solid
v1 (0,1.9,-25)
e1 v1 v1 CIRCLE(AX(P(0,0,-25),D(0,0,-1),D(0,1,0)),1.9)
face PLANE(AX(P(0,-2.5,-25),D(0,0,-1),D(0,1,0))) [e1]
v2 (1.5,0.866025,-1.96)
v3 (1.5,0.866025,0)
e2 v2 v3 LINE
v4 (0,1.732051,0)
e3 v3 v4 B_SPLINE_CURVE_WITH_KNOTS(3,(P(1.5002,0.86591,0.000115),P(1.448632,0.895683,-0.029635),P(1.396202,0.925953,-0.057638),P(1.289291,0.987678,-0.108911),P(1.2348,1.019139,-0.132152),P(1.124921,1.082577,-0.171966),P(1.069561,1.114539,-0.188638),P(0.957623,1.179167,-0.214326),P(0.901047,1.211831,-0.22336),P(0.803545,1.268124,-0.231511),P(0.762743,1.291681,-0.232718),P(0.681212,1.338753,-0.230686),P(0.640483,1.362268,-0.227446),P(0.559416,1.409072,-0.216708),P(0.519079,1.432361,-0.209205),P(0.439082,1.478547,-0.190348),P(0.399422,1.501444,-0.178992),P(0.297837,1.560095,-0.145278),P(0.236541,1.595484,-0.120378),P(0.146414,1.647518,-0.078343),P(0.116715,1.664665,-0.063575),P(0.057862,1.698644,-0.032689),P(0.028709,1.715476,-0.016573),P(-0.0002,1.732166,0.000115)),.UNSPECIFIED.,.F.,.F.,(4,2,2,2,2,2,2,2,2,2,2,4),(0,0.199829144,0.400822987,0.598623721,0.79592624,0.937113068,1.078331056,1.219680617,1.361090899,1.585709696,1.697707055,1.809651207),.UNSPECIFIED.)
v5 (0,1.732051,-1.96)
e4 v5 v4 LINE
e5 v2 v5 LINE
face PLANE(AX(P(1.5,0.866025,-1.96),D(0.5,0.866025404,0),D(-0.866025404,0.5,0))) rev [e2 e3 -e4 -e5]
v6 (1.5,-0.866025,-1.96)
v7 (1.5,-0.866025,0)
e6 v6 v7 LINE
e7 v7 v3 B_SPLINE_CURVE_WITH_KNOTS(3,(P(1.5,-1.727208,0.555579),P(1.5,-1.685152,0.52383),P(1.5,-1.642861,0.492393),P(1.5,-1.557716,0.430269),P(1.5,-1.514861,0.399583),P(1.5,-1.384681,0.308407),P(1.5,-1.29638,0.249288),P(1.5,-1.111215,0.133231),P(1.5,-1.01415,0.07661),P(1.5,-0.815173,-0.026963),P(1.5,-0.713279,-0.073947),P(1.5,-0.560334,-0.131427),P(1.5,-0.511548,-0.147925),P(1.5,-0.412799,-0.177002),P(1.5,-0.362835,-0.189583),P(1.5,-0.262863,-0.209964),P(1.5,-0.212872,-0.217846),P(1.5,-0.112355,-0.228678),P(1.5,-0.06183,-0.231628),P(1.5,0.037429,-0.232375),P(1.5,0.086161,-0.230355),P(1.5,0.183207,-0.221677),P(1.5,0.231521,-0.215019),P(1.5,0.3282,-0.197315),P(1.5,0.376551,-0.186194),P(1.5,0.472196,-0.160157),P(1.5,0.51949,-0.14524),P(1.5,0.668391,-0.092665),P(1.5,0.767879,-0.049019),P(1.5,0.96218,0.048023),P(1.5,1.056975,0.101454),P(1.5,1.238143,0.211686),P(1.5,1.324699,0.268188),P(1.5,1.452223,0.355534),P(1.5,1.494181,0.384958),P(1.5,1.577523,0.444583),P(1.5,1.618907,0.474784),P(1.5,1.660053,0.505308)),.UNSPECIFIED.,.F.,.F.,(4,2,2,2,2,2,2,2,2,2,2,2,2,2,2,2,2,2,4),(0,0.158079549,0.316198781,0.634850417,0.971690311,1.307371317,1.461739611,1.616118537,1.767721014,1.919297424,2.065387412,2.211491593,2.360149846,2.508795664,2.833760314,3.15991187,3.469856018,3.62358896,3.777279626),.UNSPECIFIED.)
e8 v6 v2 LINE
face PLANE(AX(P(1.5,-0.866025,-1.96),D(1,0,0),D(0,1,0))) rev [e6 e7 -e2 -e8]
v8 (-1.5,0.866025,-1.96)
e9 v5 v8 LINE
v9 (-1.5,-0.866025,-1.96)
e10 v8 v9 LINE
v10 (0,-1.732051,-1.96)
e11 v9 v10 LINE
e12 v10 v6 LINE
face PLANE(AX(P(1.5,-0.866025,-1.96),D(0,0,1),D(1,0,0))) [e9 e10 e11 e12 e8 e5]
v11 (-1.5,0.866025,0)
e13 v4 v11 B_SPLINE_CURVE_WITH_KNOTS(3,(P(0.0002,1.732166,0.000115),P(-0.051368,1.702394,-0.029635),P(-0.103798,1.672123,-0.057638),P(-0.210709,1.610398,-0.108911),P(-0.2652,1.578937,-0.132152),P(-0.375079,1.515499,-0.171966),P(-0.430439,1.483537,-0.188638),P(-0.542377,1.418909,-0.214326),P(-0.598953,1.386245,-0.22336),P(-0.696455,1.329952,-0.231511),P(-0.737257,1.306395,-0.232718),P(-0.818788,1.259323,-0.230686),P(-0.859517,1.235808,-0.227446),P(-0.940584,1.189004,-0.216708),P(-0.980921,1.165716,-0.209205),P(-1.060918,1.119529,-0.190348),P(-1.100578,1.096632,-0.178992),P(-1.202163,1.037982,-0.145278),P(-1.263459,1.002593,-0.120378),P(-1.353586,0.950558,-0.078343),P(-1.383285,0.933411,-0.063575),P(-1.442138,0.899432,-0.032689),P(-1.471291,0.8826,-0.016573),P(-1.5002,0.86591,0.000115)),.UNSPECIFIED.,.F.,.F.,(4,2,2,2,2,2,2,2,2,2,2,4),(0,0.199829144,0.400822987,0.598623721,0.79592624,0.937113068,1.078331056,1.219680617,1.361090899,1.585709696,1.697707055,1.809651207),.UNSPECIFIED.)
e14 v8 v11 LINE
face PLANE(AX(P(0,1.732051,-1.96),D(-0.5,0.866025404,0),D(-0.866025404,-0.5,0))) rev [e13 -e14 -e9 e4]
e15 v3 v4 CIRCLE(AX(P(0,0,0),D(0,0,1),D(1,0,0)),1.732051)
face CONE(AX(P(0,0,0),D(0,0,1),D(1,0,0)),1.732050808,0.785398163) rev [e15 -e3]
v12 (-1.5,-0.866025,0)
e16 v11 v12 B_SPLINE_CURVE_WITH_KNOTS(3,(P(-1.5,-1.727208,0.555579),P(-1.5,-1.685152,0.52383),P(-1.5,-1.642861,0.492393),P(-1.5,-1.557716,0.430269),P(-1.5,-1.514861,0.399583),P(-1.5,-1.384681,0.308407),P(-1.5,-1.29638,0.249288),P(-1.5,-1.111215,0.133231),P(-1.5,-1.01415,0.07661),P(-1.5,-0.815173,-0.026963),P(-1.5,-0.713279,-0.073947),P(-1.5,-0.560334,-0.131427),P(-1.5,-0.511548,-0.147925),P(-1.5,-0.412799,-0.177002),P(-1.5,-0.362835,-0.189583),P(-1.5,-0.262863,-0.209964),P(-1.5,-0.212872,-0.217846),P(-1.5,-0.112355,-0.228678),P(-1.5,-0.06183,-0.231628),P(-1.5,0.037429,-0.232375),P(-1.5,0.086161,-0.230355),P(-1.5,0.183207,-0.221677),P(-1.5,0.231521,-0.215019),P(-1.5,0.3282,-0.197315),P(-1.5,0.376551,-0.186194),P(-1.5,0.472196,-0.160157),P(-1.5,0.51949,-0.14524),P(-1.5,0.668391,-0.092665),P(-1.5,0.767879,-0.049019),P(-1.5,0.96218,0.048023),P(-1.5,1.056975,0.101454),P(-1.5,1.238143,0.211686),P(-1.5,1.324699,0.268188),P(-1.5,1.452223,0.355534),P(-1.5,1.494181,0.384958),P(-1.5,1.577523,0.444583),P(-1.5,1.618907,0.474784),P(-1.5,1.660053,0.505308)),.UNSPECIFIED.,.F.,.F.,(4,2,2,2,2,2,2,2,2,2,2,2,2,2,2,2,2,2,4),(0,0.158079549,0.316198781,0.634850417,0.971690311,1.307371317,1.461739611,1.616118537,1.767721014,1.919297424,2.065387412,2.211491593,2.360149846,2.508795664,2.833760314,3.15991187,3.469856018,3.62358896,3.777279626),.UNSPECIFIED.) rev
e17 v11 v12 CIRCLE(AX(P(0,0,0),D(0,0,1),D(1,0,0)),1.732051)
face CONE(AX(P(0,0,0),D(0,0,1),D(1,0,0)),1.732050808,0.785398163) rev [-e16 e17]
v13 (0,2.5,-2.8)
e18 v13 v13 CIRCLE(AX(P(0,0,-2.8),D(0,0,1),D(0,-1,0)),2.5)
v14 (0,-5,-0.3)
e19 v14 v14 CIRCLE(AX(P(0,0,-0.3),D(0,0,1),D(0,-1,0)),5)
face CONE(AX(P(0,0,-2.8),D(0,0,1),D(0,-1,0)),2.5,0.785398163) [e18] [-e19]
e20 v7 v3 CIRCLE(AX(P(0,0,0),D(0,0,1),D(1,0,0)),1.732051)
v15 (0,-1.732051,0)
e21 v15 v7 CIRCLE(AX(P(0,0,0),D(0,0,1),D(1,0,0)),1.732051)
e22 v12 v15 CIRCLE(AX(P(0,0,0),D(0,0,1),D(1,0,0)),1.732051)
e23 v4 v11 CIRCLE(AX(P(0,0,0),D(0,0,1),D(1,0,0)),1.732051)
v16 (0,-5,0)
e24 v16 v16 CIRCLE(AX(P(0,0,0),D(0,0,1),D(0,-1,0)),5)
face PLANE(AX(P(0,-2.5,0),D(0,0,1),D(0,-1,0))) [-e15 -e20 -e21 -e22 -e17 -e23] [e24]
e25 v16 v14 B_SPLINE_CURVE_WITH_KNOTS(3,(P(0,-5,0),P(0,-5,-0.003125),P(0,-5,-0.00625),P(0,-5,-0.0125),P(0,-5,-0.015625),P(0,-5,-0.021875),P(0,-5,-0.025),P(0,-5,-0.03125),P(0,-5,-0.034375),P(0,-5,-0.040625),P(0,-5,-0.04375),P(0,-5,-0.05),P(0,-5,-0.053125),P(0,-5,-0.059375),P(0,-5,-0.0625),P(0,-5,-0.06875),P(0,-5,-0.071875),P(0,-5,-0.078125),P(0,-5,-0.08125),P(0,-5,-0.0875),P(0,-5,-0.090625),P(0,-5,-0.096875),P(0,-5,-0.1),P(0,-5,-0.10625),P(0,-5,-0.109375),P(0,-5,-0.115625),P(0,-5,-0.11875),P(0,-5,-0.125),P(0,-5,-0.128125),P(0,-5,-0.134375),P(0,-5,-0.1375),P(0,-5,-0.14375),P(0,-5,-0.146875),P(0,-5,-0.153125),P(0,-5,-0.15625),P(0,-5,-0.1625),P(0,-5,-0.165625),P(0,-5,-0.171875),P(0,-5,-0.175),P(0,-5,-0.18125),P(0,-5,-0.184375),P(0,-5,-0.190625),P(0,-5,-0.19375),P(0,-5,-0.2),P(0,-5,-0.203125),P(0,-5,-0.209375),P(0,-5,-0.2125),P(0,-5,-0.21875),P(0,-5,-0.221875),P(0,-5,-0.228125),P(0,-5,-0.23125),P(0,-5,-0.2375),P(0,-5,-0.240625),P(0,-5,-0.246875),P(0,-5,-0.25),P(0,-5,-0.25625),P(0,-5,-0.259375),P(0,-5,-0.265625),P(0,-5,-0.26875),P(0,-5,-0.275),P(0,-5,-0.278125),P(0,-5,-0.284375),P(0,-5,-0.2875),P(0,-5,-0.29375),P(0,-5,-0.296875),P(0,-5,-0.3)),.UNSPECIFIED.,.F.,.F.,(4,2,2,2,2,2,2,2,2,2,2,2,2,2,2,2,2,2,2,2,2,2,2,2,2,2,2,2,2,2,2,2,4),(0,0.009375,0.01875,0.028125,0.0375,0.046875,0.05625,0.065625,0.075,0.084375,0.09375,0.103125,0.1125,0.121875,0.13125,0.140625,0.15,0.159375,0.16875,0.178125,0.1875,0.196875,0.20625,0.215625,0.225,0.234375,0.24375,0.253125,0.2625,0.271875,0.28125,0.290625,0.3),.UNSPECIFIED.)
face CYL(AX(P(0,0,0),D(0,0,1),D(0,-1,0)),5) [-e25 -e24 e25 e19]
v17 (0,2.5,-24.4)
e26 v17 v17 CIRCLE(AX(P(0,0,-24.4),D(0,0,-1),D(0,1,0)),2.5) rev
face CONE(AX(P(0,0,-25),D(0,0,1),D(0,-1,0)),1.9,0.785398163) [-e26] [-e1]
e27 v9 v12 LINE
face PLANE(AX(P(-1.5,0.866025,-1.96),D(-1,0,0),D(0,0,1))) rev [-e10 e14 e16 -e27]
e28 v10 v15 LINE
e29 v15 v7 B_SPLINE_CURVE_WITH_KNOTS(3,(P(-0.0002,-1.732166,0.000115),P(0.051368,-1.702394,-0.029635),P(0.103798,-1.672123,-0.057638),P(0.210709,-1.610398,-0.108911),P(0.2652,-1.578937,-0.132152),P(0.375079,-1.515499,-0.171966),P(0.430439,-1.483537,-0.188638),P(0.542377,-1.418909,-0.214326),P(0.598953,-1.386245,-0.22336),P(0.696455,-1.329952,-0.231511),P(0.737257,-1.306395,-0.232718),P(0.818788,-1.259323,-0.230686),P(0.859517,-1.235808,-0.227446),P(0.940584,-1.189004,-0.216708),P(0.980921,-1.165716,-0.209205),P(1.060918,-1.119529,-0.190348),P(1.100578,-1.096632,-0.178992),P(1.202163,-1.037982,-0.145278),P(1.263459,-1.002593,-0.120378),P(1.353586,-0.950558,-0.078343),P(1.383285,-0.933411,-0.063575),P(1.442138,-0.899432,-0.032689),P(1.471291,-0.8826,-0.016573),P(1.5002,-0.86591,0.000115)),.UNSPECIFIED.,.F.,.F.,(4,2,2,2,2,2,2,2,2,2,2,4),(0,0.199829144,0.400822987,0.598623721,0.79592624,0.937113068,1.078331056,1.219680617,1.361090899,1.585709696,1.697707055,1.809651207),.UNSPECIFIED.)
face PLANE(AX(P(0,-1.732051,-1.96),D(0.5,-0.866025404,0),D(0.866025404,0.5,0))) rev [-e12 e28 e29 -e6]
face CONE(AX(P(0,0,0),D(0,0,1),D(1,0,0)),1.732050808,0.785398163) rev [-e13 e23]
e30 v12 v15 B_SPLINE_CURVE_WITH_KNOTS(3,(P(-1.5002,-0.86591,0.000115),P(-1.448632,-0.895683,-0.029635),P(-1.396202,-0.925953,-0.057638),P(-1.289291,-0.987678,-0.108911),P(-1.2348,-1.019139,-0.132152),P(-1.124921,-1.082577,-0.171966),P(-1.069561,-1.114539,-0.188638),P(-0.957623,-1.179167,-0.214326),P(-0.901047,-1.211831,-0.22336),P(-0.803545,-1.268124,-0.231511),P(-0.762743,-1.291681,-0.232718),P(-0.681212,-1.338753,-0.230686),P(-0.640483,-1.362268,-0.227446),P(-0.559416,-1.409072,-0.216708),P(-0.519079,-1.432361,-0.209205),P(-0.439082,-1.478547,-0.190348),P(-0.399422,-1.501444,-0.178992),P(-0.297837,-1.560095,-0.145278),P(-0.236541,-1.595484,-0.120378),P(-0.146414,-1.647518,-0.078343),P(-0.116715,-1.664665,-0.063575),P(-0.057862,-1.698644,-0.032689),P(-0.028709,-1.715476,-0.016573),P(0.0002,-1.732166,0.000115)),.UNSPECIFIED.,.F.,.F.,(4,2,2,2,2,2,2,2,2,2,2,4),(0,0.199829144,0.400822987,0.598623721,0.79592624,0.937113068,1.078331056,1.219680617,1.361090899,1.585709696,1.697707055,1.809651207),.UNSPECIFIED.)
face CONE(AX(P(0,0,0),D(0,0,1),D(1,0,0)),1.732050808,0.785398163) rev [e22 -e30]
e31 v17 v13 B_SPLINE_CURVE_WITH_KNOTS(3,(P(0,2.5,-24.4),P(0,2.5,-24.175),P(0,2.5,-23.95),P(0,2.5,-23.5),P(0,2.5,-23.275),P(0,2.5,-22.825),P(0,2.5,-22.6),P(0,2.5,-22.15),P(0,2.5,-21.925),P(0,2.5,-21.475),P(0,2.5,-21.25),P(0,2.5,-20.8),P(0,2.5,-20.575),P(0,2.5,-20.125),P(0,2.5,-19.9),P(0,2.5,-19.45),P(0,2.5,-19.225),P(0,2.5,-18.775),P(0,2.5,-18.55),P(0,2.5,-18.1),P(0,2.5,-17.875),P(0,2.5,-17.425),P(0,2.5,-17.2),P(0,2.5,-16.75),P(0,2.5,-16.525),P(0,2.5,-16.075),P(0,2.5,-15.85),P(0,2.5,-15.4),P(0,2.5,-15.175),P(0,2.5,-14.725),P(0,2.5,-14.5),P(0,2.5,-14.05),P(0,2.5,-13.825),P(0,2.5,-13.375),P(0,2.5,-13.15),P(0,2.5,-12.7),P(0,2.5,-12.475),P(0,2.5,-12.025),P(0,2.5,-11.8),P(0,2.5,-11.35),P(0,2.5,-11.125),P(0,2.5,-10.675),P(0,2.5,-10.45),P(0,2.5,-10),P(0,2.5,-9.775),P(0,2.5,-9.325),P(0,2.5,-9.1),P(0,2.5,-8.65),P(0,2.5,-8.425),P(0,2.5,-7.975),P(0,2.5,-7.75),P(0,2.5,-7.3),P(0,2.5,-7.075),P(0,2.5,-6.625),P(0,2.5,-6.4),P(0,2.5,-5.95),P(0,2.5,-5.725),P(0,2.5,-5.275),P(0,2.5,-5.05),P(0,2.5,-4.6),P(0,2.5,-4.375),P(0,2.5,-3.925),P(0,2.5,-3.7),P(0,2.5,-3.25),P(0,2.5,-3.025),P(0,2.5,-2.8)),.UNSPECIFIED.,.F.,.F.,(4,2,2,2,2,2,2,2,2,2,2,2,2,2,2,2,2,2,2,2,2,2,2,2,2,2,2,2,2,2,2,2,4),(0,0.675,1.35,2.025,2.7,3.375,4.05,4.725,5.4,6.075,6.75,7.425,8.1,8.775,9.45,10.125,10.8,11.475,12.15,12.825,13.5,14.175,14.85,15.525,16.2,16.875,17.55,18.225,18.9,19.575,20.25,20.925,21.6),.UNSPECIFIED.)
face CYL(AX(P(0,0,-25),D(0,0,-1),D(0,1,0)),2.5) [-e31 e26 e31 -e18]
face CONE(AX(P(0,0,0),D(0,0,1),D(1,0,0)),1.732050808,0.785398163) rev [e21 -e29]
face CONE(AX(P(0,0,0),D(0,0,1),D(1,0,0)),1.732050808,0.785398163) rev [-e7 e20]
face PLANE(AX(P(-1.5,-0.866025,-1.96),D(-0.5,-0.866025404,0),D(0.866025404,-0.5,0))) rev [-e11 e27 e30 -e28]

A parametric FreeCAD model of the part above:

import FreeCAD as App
import Part
import Sketcher
Q = App.Units.Quantity


def edges_at(feature, points):
    """Names of the edges that pass closest to the given points."""
    edges = feature.Shape.Edges
    near = lambda p: min(range(len(edges)), key=lambda i: edges[i].distToShape(Part.Vertex(*p))[0])
    return sorted({f"Edge{near(p) + 1}" for p in points})


def add_polygon(sketch, points):
    """Adds a closed chain of lines whose ends are joined by coincident constraints."""
    first, n = sketch.GeometryCount, len(points)
    for a, b in zip(points, points[1:] + points[:1]):
        sketch.addGeometry(Part.LineSegment(App.Vector(*a, 0), App.Vector(*b, 0)), False)
    for i in range(n):
        sketch.addConstraint(Sketcher.Constraint("Coincident", first + i, 2, first + (i + 1) % n, 1))

doc = App.newDocument("Part")
body = doc.addObject("PartDesign::Body", "Body")

# Sketch on YZ plane
sketch1 = body.newObject("Sketcher::SketchObject", "Sketch")
sketch1.AttachmentSupport = (doc.getObject("YZ_Plane"), [""])
sketch1.MapMode = "FlatFace"
add_polygon(sketch1, [(2.5, 0), (0, 0), (0, -25), (2.5, -25)])  # lines 0-3
sketch1.addConstraint([
    Sketcher.Constraint("Horizontal", 0),
    Sketcher.Constraint("Vertical", 1),
    Sketcher.Constraint("Horizontal", 2),
    Sketcher.Constraint("Vertical", 3),
    Sketcher.Constraint("Coincident", 0, 2, -1, 1),
    Sketcher.Constraint("DistanceY", 1, 2, 1, 1, 25.0),
    Sketcher.Constraint("DistanceX", 0, 2, 0, 1, 2.5),
])
revolution = body.newObject("PartDesign::Revolution", "Revolution")
revolution.Profile = sketch1
revolution.ReferenceAxis = (sketch1, ["V_Axis"])
revolution.Angle = 360
doc.recompute()

chamfer = body.newObject("PartDesign::Chamfer", "Chamfer")
chamfer.Base = (revolution, edges_at(revolution, [(0, -2.5, -25)]))
chamfer.Size = 0.6

# Sketch on YZ plane
sketch2 = body.newObject("Sketcher::SketchObject", "Sketch001")
sketch2.AttachmentSupport = (doc.getObject("YZ_Plane"), [""])
sketch2.MapMode = "FlatFace"
add_polygon(sketch2, [(5, -0.3), (5, 0), (0, 0), (0, -2.8), (2.5, -2.8)])  # lines 0-4
sketch2.addConstraint([
    Sketcher.Constraint("Vertical", 0),
    Sketcher.Constraint("Horizontal", 1),
    Sketcher.Constraint("Vertical", 2),
    Sketcher.Constraint("Horizontal", 3),
    Sketcher.Constraint("Coincident", 1, 2, -1, 1),
    Sketcher.Constraint("DistanceX", 1, 2, 1, 1, 5.0),
    Sketcher.Constraint("Angle", 4, Q("45 deg")),
    Sketcher.Constraint("DistanceX", 3, 1, 3, 2, 2.5),
    Sketcher.Constraint("DistanceY", 0, 1, 0, 2, 0.3),
])
revolution2 = body.newObject("PartDesign::Revolution", "Revolution001")
revolution2.Profile = sketch2
revolution2.ReferenceAxis = (sketch2, ["V_Axis"])
revolution2.Angle = 360

# Sketch on YZ plane
sketch3 = body.newObject("Sketcher::SketchObject", "Sketch002")
sketch3.AttachmentSupport = (doc.getObject("YZ_Plane"), [""])
sketch3.MapMode = "FlatFace"
add_polygon(sketch3, [(0, -2.8), (-2.5, -2.8), (0, -5.3)])  # lines 0-2
sketch3.addConstraint([
    Sketcher.Constraint("Horizontal", 0),
    Sketcher.Constraint("Vertical", 2),
    Sketcher.Constraint("PointOnObject", 1, 2, -2),
    Sketcher.Constraint("Equal", 0, 2),
    Sketcher.Constraint("DistanceX", 0, 2, 0, 1, 2.5),
    Sketcher.Constraint("DistanceY", 0, 2, -1, 1, 2.8),
])
revolution3 = body.newObject("PartDesign::Revolution", "Revolution002")
revolution3.Profile = sketch3
revolution3.ReferenceAxis = (sketch3, ["V_Axis"])
revolution3.Angle = 360

# Sketch on XY plane
sketch4 = body.newObject("Sketcher::SketchObject", "Sketch003")
sketch4.AttachmentSupport = (doc.getObject("XY_Plane"), [""])
sketch4.MapMode = "FlatFace"
add_polygon(sketch4, [(1.5, -0.9), (1.5, 0.9), (0, 1.7), (-1.5, 0.9), (-1.5, -0.9), (0, -1.7)])  # lines 0-5
sketch4.addConstraint([
    Sketcher.Constraint("Vertical", 0),
    Sketcher.Constraint("Vertical", 3),
    Sketcher.Constraint("Symmetric", 0, 2, 3, 2, -1, 1),
    Sketcher.Constraint("Symmetric", 1, 2, 4, 2, -1, 1),
    Sketcher.Constraint("PointOnObject", 1, 2, -2),
    Sketcher.Constraint("Parallel", 2, 5),
    Sketcher.Constraint("Horizontal", 0, 2, 2, 2),
    Sketcher.Constraint("Angle", 1, Q("150 deg")),
    Sketcher.Constraint("DistanceX", 2, 2, 0, 2, 3.0),
    Sketcher.Constraint("DistanceY", 0, 1, 0, 2, 1.732051),
])
pocket1 = body.newObject("PartDesign::Pocket", "Pocket")
pocket1.Profile = sketch4
pocket1.Length = 1.96

# Sketch on YZ plane
sketch5 = body.newObject("Sketcher::SketchObject", "Sketch004")
sketch5.AttachmentSupport = (doc.getObject("YZ_Plane"), [""])
sketch5.MapMode = "FlatFace"
add_polygon(sketch5, [(0, 0), (-1.7, 0), (0, -1.7)])  # lines 0-2
sketch5.addConstraint([
    Sketcher.Constraint("Horizontal", 0),
    Sketcher.Constraint("Vertical", 2),
    Sketcher.Constraint("Coincident", 2, 2, -1, 1),
    Sketcher.Constraint("Equal", 0, 2),
    Sketcher.Constraint("DistanceX", 0, 2, 0, 1, 1.732051),
])
groove = body.newObject("PartDesign::Groove", "Groove")
groove.Profile = sketch5
groove.ReferenceAxis = (sketch5, ["V_Axis"])
groove.Angle = 360

doc.recompute()
